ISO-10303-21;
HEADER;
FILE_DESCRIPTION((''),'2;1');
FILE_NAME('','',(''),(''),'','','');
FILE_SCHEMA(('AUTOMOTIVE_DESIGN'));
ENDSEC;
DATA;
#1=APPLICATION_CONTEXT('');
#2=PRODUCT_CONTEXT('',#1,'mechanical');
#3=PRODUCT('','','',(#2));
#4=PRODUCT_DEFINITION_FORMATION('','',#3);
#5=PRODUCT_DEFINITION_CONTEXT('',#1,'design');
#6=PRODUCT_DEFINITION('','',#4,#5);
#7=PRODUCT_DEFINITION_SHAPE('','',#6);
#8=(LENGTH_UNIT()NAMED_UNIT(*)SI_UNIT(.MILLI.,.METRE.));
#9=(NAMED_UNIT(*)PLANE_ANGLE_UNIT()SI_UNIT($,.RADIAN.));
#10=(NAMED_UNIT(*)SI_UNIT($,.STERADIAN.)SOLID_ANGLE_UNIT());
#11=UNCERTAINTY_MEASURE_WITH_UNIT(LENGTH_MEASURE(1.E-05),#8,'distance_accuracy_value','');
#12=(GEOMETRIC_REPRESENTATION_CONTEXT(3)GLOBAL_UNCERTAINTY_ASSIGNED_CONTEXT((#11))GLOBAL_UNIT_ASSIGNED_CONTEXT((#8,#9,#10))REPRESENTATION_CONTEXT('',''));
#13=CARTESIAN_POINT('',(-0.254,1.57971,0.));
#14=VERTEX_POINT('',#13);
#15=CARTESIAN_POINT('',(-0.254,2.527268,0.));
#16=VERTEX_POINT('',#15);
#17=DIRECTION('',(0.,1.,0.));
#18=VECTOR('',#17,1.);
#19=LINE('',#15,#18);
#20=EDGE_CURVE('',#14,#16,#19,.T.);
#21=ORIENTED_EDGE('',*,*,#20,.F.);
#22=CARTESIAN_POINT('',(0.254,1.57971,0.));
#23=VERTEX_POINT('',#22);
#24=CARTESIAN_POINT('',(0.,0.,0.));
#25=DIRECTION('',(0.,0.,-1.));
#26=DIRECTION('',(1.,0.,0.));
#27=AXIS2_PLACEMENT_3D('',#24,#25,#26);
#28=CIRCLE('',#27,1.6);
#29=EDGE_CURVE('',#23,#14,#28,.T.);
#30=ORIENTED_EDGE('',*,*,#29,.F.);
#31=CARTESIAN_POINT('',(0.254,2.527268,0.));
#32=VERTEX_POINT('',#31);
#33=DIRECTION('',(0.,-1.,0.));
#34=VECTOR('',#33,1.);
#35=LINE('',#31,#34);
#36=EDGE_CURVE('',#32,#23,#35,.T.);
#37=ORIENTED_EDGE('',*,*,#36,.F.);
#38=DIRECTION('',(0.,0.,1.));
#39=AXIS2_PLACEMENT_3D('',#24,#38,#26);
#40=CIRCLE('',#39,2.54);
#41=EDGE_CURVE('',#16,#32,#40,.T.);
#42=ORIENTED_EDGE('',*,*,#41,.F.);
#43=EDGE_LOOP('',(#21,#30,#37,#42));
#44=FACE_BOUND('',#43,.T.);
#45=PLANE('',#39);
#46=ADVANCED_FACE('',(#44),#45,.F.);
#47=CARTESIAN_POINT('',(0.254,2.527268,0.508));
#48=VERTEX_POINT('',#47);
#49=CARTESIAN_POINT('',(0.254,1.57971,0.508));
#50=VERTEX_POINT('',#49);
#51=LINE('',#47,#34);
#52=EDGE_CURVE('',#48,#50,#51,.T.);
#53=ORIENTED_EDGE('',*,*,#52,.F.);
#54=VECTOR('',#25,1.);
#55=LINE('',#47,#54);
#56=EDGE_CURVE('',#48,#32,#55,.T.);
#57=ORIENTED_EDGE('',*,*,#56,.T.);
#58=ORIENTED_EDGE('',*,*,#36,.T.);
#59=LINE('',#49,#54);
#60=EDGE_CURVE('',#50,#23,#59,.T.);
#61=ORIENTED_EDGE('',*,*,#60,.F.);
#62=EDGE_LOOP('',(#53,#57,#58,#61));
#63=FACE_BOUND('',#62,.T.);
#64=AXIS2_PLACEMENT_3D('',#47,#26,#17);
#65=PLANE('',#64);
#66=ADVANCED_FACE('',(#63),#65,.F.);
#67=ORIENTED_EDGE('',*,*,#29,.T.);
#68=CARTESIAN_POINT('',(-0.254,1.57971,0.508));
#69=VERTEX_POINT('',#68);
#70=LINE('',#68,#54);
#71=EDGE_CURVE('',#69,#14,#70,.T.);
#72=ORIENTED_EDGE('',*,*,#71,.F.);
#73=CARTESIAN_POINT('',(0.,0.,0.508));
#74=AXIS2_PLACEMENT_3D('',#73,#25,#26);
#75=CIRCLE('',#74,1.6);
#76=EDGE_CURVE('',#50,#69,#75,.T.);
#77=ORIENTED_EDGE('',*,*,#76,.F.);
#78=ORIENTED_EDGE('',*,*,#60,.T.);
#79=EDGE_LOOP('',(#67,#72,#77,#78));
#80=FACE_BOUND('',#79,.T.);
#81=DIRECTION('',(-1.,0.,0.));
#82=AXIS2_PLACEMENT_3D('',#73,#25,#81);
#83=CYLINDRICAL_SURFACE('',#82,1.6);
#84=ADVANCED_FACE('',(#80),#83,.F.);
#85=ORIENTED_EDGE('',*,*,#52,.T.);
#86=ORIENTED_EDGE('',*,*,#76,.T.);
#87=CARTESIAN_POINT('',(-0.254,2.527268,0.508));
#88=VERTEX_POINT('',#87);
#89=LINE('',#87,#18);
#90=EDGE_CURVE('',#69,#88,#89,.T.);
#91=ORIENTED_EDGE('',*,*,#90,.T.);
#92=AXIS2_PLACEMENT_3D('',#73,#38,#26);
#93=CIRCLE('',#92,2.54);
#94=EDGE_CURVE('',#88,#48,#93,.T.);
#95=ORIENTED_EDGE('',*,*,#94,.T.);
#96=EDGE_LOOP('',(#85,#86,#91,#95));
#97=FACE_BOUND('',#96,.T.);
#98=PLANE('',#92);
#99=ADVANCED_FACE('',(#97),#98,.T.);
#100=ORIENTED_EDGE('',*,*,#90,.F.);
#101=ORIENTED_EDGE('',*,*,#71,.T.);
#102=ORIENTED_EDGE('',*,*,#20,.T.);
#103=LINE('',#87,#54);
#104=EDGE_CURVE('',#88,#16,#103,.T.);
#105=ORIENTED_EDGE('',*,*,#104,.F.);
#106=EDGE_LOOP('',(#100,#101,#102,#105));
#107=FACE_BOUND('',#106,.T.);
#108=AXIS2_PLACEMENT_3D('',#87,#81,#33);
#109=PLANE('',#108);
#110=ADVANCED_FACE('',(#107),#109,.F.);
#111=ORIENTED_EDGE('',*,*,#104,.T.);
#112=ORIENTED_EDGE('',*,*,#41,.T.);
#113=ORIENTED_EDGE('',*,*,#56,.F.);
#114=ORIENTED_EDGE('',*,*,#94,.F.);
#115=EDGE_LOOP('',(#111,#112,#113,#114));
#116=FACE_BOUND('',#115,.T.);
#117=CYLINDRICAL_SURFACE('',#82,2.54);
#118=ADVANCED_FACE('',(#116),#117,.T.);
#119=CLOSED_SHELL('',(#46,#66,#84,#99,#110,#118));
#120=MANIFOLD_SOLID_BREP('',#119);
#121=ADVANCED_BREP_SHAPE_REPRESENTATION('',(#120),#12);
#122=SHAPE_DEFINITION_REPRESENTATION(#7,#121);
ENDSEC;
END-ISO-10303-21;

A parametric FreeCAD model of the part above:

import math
import FreeCAD as App
import Part
import Sketcher

V = App.Vector
Q = App.Units.Quantity

doc = App.newDocument("Part")
body = doc.addObject("PartDesign::Body", "Body")

sketch1 = body.newObject("Sketcher::SketchObject", "Sketch")
sketch1.AttachmentSupport = (doc.getObject("XY_Plane"), [""])
sketch1.MapMode = "FlatFace"
sketch1.addGeometry(Part.LineSegment(V(-0.3, 1.6, 0), V(-0.3, 2.5, 0)), False)
sketch1.addGeometry(Part.ArcOfCircle(Part.Circle(V(0, 0, 0), V(0, 0, 1), 2.5), math.radians(96), math.radians(444)), False)
sketch1.addGeometry(Part.LineSegment(V(0.3, 2.5, 0), V(0.3, 1.6, 0)), False)
sketch1.addGeometry(Part.ArcOfCircle(Part.Circle(V(0, 0, 0), V(0, 0, 1), 1.6), math.radians(99), math.radians(441)), False)
sketch1.addConstraint(Sketcher.Constraint("Coincident", 0, 2, 1, 1))
sketch1.addConstraint(Sketcher.Constraint("Coincident", 1, 2, 2, 1))
sketch1.addConstraint(Sketcher.Constraint("Coincident", 2, 2, 3, 2))
sketch1.addConstraint(Sketcher.Constraint("Coincident", 3, 1, 0, 1))
sketch1.addConstraint(Sketcher.Constraint("Vertical", 0))
sketch1.addConstraint(Sketcher.Constraint("Vertical", 2))
sketch1.addConstraint(Sketcher.Constraint("Coincident", 1, 3, -1, 1))
sketch1.addConstraint(Sketcher.Constraint("Coincident", 3, 3, -1, 1))
sketch1.addConstraint(Sketcher.Constraint("Horizontal", 0, 2, 1, 2))
sketch1.addConstraint(Sketcher.Constraint("Radius", 1, Q("0.1 in")))
sketch1.addConstraint(Sketcher.Constraint("DistanceX", 0, 2, -1, 1, Q("0.01 in")))
sketch1.addConstraint(Sketcher.Constraint("Radius", 3, Q("1.6 mm")))
pad1 = body.newObject("PartDesign::Pad", "Pad")
pad1.Profile = sketch1
pad1.Length = Q("0.02 in")

doc.recompute()
